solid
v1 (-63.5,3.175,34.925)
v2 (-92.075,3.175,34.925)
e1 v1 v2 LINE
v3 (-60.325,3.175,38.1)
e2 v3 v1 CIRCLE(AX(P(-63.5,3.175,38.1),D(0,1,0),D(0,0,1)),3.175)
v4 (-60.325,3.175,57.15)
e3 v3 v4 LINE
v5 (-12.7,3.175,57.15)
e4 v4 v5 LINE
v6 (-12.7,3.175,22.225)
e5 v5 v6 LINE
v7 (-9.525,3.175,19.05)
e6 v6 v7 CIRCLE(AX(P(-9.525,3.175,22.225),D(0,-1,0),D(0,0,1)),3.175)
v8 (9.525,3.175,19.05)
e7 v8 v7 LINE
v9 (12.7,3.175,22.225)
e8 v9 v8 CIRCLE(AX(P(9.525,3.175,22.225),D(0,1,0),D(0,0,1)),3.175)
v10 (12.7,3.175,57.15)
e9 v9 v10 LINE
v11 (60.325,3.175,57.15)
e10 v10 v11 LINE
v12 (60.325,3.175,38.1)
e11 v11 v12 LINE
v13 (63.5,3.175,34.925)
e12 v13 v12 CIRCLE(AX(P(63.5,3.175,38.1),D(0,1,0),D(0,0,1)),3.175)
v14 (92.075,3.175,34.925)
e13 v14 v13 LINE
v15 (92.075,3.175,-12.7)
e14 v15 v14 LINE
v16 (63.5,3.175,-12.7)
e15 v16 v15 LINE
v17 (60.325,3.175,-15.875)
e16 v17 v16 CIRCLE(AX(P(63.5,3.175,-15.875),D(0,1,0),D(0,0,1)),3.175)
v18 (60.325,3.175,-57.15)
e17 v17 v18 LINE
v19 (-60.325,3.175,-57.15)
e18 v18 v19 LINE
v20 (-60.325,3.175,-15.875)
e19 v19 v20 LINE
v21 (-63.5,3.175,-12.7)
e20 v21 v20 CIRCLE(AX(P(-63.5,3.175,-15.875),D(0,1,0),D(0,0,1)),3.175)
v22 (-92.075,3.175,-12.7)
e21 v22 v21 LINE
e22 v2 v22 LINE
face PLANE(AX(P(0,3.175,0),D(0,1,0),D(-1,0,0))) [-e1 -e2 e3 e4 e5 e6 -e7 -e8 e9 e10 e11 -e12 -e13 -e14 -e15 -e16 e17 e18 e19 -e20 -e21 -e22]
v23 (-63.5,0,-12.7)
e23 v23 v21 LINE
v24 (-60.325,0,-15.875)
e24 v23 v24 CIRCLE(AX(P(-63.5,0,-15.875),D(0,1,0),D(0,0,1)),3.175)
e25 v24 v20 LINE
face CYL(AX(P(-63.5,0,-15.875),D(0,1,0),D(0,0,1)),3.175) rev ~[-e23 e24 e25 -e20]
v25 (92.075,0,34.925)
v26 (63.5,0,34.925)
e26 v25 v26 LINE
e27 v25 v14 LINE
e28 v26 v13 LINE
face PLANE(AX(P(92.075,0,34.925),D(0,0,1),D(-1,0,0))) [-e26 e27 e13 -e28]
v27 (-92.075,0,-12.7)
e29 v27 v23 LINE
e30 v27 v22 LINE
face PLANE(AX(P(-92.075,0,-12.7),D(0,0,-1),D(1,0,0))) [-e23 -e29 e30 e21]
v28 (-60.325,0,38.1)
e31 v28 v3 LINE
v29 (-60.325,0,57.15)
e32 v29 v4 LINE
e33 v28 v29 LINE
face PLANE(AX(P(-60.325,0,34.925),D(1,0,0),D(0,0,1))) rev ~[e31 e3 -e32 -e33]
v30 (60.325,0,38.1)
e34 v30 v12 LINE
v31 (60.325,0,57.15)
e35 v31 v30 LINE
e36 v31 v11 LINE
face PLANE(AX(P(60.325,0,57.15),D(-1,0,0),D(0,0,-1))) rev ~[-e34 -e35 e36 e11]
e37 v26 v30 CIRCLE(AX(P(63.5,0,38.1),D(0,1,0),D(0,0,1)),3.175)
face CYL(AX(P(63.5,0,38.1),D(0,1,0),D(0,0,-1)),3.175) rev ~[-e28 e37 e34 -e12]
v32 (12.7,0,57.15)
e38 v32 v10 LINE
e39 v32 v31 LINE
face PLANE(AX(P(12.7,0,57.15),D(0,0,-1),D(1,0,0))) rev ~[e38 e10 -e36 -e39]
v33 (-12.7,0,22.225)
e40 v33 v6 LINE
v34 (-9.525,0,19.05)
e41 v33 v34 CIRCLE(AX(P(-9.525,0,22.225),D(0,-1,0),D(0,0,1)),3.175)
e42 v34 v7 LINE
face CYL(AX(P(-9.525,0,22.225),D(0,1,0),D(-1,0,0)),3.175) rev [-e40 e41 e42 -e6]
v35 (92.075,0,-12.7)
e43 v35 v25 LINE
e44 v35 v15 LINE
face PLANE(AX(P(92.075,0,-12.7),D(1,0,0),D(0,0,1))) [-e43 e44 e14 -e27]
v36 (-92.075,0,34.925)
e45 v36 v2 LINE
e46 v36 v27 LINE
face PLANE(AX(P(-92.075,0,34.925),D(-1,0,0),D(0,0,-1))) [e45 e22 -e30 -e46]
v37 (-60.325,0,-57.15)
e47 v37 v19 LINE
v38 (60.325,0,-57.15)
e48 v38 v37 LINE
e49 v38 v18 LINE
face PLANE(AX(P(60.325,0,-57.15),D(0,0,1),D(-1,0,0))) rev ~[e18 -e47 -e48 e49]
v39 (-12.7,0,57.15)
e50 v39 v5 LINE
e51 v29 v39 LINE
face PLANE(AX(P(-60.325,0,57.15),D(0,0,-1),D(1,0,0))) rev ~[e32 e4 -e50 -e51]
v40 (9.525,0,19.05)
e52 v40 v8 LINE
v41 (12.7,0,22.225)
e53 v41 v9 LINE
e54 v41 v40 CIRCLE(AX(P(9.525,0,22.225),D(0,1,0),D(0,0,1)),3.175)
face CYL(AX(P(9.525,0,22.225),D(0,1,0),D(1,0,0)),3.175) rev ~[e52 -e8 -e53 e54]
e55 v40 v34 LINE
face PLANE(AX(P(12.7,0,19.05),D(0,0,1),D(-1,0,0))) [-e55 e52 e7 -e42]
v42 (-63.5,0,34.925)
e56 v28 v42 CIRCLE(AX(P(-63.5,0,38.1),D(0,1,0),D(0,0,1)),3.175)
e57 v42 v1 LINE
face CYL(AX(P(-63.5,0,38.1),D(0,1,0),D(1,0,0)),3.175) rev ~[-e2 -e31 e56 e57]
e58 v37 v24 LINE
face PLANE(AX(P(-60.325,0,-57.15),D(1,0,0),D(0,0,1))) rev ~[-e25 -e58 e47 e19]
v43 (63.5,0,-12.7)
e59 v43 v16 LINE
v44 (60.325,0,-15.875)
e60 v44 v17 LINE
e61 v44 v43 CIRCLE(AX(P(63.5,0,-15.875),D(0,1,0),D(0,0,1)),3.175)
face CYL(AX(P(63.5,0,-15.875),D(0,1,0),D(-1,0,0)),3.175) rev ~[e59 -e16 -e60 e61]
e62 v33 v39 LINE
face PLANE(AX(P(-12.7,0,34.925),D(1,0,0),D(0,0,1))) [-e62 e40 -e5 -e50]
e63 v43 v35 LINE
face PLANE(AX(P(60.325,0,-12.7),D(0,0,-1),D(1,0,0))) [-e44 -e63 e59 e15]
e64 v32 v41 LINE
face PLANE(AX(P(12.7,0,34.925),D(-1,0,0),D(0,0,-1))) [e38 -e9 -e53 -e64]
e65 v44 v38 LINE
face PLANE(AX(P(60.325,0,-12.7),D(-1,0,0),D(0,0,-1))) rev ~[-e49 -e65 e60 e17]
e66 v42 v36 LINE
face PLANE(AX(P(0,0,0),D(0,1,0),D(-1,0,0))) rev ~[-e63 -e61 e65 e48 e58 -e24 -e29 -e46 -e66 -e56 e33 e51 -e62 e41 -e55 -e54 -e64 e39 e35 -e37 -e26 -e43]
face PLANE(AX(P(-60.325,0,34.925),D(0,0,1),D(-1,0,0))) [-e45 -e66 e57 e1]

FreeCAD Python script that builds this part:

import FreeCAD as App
import Part
import Sketcher
from FreeCAD import Vector
Q = App.Units.Quantity


def edges_at(feature, points):
    """Names of the edges that pass closest to the given points."""
    edges = feature.Shape.Edges
    near = lambda p: min(range(len(edges)), key=lambda i: edges[i].distToShape(Part.Vertex(*p))[0])
    return sorted({f"Edge{near(p) + 1}" for p in points})

doc = App.newDocument("Part")
body = doc.addObject("PartDesign::Body", "Body")

sketch1 = body.newObject("Sketcher::SketchObject", "Sketch")
sketch1.AttachmentSupport = (doc.getObject("XZ_Plane"), [""])
sketch1.MapMode = "FlatFace"
sketch1.addGeometry(Part.LineSegment(Vector(-60, 35, 0), Vector(-60, 57, 0)), False)
sketch1.addGeometry(Part.LineSegment(Vector(-60, 57, 0), Vector(-13, 57, 0)), False)
sketch1.addGeometry(Part.LineSegment(Vector(-13, 57, 0), Vector(-13, 19, 0)), False)
sketch1.addGeometry(Part.LineSegment(Vector(-13, 19, 0), Vector(13, 19, 0)), False)
sketch1.addGeometry(Part.LineSegment(Vector(13, 19, 0), Vector(13, 57, 0)), False)
sketch1.addGeometry(Part.LineSegment(Vector(13, 57, 0), Vector(60, 57, 0)), False)
sketch1.addGeometry(Part.LineSegment(Vector(60, 57, 0), Vector(60, 35, 0)), False)
sketch1.addGeometry(Part.LineSegment(Vector(60, 35, 0), Vector(92, 35, 0)), False)
sketch1.addGeometry(Part.LineSegment(Vector(92, 35, 0), Vector(92, -13, 0)), False)
sketch1.addGeometry(Part.LineSegment(Vector(92, -13, 0), Vector(60, -13, 0)), False)
sketch1.addGeometry(Part.LineSegment(Vector(60, -13, 0), Vector(60, -57, 0)), False)
sketch1.addGeometry(Part.LineSegment(Vector(60, -57, 0), Vector(-60, -57, 0)), False)
sketch1.addGeometry(Part.LineSegment(Vector(-60, -57, 0), Vector(-60, -13, 0)), False)
sketch1.addGeometry(Part.LineSegment(Vector(-60, -13, 0), Vector(-92, -13, 0)), False)
sketch1.addGeometry(Part.LineSegment(Vector(-92, -13, 0), Vector(-92, 35, 0)), False)
sketch1.addGeometry(Part.LineSegment(Vector(-92, 35, 0), Vector(-60, 35, 0)), False)
sketch1.addConstraint(Sketcher.Constraint("Coincident", 0, 2, 1, 1))
sketch1.addConstraint(Sketcher.Constraint("Coincident", 1, 2, 2, 1))
sketch1.addConstraint(Sketcher.Constraint("Coincident", 2, 2, 3, 1))
sketch1.addConstraint(Sketcher.Constraint("Coincident", 3, 2, 4, 1))
sketch1.addConstraint(Sketcher.Constraint("Coincident", 4, 2, 5, 1))
sketch1.addConstraint(Sketcher.Constraint("Coincident", 5, 2, 6, 1))
sketch1.addConstraint(Sketcher.Constraint("Coincident", 6, 2, 7, 1))
sketch1.addConstraint(Sketcher.Constraint("Coincident", 7, 2, 8, 1))
sketch1.addConstraint(Sketcher.Constraint("Coincident", 8, 2, 9, 1))
sketch1.addConstraint(Sketcher.Constraint("Coincident", 9, 2, 10, 1))
sketch1.addConstraint(Sketcher.Constraint("Coincident", 10, 2, 11, 1))
sketch1.addConstraint(Sketcher.Constraint("Coincident", 11, 2, 12, 1))
sketch1.addConstraint(Sketcher.Constraint("Coincident", 12, 2, 13, 1))
sketch1.addConstraint(Sketcher.Constraint("Coincident", 13, 2, 14, 1))
sketch1.addConstraint(Sketcher.Constraint("Coincident", 14, 2, 15, 1))
sketch1.addConstraint(Sketcher.Constraint("Coincident", 15, 2, 0, 1))
sketch1.addConstraint(Sketcher.Constraint("Vertical", 0))
sketch1.addConstraint(Sketcher.Constraint("Horizontal", 1))
sketch1.addConstraint(Sketcher.Constraint("Vertical", 2))
sketch1.addConstraint(Sketcher.Constraint("Horizontal", 3))
sketch1.addConstraint(Sketcher.Constraint("Vertical", 4))
sketch1.addConstraint(Sketcher.Constraint("Horizontal", 5))
sketch1.addConstraint(Sketcher.Constraint("Vertical", 6))
sketch1.addConstraint(Sketcher.Constraint("Horizontal", 7))
sketch1.addConstraint(Sketcher.Constraint("Vertical", 8))
sketch1.addConstraint(Sketcher.Constraint("Horizontal", 9))
sketch1.addConstraint(Sketcher.Constraint("Vertical", 10))
sketch1.addConstraint(Sketcher.Constraint("Horizontal", 11))
sketch1.addConstraint(Sketcher.Constraint("Vertical", 12))
sketch1.addConstraint(Sketcher.Constraint("Horizontal", 13))
sketch1.addConstraint(Sketcher.Constraint("Vertical", 14))
sketch1.addConstraint(Sketcher.Constraint("Horizontal", 15))
sketch1.addConstraint(Sketcher.Constraint("Symmetric", 0, 2, 10, 2, -1, 1))
sketch1.addConstraint(Sketcher.Constraint("Symmetric", 5, 2, 11, 2, -1, 1))
sketch1.addConstraint(Sketcher.Constraint("Symmetric", 9, 2, 12, 2, -2))
sketch1.addConstraint(Sketcher.Constraint("Symmetric", 7, 2, 14, 2, -2))
sketch1.addConstraint(Sketcher.Constraint("Equal", 1, 5))
sketch1.addConstraint(Sketcher.Constraint("Equal", 5, 8))
sketch1.addConstraint(Sketcher.Constraint("DistanceX", 3, 1, 3, 2, Q("1 in")))
sketch1.addConstraint(Sketcher.Constraint("DistanceY", 10, 2, 3, 2, Q("3 in")))
sketch1.addConstraint(Sketcher.Constraint("DistanceX", 11, 2, 11, 1, Q("4.75 in")))
sketch1.addConstraint(Sketcher.Constraint("DistanceY", 10, 2, 10, 1, Q("1.75 in")))
sketch1.addConstraint(Sketcher.Constraint("DistanceY", 11, 2, 0, 2, Q("4.5 in")))
sketch1.addConstraint(Sketcher.Constraint("DistanceX", 7, 1, 7, 2, Q("1.25 in")))
pad1 = body.newObject("PartDesign::Pad", "Pad")
pad1.Profile = sketch1
pad1.Length = Q("0.125 in")
pad1.Reversed = True
doc.recompute()

fillet = body.newObject("PartDesign::Fillet", "Fillet")
fillet.Base = (pad1, edges_at(pad1, [
    (60.325, 1.587, 34.925),
    (60.325, 1.587, -12.7),
    (-12.7, 1.587, 19.05),
    (12.7, 1.587, 19.05),
    (-60.325, 1.587, 34.925),
    (-60.325, 1.587, -12.7),
]))
fillet.Radius = Q("0.125 in")

doc.recompute()
